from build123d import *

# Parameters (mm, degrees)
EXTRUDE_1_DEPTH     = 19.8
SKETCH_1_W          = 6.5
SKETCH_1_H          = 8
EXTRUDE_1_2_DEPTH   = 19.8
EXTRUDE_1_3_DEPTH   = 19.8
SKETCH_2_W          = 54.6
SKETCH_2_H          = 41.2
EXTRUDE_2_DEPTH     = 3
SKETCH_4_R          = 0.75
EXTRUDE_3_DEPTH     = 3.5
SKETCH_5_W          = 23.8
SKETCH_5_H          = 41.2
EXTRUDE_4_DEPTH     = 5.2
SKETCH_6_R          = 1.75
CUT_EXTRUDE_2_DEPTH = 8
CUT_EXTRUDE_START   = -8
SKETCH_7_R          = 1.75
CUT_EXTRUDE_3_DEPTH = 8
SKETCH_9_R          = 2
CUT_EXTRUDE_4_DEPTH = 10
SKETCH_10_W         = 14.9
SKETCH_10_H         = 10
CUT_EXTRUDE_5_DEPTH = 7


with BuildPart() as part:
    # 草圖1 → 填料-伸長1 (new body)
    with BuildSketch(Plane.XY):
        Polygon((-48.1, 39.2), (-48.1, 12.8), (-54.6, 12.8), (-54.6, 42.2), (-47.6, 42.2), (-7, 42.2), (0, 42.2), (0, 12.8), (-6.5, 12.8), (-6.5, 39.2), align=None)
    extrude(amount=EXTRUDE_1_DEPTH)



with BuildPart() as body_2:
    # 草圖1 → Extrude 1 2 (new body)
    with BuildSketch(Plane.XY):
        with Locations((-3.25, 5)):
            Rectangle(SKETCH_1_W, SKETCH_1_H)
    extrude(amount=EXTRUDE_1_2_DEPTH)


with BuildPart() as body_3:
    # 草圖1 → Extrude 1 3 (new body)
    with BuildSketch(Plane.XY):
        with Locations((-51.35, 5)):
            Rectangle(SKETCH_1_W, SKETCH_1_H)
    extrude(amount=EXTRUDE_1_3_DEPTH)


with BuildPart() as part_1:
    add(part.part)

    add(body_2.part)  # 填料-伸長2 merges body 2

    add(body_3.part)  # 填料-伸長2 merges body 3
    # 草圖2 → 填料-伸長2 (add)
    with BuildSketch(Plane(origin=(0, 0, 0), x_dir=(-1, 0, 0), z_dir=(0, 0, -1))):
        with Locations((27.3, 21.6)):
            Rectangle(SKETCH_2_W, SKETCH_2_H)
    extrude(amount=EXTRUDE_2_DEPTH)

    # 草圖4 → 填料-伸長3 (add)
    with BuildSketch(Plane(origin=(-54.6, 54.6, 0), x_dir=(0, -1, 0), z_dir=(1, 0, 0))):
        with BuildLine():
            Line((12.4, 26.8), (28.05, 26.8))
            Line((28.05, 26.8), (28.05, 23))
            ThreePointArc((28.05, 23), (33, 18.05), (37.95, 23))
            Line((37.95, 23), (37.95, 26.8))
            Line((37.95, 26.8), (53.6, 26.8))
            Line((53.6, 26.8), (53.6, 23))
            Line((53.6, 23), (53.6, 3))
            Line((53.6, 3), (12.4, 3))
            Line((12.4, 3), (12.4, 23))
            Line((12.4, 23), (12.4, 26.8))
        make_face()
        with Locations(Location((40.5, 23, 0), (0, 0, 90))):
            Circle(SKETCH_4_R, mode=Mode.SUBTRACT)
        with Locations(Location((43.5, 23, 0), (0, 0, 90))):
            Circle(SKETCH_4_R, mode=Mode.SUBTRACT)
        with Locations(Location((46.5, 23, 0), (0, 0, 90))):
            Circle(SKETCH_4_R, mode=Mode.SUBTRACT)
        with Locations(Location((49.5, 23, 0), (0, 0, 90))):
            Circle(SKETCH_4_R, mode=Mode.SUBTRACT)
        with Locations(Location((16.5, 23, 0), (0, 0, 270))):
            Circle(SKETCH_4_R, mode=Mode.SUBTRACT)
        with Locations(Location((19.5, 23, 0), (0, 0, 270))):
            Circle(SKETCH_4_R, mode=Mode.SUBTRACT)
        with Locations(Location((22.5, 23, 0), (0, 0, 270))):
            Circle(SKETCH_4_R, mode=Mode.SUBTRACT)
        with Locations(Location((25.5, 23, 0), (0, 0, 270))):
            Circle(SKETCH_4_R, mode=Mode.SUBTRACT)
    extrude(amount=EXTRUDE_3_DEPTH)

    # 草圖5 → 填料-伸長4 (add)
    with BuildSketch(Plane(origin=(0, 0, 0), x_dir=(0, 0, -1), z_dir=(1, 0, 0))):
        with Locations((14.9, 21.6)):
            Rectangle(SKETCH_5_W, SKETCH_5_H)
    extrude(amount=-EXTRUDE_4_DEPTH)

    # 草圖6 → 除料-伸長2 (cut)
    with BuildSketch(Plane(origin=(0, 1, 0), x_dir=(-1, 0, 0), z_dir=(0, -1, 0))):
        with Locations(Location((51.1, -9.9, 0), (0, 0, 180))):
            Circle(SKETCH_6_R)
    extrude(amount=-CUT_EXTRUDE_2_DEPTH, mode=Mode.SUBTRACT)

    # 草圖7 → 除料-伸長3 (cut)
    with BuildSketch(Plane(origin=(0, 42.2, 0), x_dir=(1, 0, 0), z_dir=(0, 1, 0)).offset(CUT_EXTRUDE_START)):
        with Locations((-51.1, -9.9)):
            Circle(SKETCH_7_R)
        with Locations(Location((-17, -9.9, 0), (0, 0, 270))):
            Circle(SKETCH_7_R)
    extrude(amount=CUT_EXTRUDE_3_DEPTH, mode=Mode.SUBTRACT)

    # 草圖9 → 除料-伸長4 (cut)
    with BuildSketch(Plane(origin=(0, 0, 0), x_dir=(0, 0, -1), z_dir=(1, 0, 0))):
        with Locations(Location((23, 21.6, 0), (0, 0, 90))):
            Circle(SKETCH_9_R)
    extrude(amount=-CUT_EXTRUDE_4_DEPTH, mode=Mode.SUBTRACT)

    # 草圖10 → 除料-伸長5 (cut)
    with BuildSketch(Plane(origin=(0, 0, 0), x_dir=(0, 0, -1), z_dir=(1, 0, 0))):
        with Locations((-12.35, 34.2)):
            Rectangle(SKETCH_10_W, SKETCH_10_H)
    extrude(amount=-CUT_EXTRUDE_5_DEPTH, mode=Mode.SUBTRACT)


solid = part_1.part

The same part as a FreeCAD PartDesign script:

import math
import FreeCAD as App
import Part
import Sketcher


def add_polygon(sketch, points):
    """Adds a closed chain of lines whose ends are joined by coincident constraints."""
    first, n = sketch.GeometryCount, len(points)
    for a, b in zip(points, points[1:] + points[:1]):
        sketch.addGeometry(Part.LineSegment(App.Vector(*a, 0), App.Vector(*b, 0)), False)
    for i in range(n):
        sketch.addConstraint(Sketcher.Constraint("Coincident", first + i, 2, first + (i + 1) % n, 1))

doc = App.newDocument("Part")
body = doc.addObject("PartDesign::Body", "Body")

# Sketch on XY plane
sketch1 = body.newObject("Sketcher::SketchObject", "Sketch")
sketch1.AttachmentSupport = (doc.getObject("XY_Plane"), [""])
sketch1.MapMode = "FlatFace"
add_polygon(sketch1, [(-48, 13), (-48, 39), (-6, 39), (-6, 13), (0, 13), (0, 42), (-55, 42), (-55, 13)])  # lines 0-7
sketch1.addConstraint(Sketcher.Constraint("Vertical", 0))
sketch1.addConstraint(Sketcher.Constraint("Horizontal", 1))
sketch1.addConstraint(Sketcher.Constraint("Vertical", 2))
sketch1.addConstraint(Sketcher.Constraint("Horizontal", 3))
sketch1.addConstraint(Sketcher.Constraint("Vertical", 4))
sketch1.addConstraint(Sketcher.Constraint("Horizontal", 5))
sketch1.addConstraint(Sketcher.Constraint("Vertical", 6))
sketch1.addConstraint(Sketcher.Constraint("Horizontal", 7))
sketch1.addConstraint(Sketcher.Constraint("PointOnObject", 3, 2, -2))
sketch1.addConstraint(Sketcher.Constraint("Horizontal", 3, 2, 6, 2))
sketch1.addConstraint(Sketcher.Constraint("Equal", 3, 7))
sketch1.addConstraint(Sketcher.Constraint("DistanceX", 1, 1, 1, 2, 41.6))
sketch1.addConstraint(Sketcher.Constraint("DistanceX", 3, 1, 3, 2, 6.5))
sketch1.addConstraint(Sketcher.Constraint("DistanceY", 0, 1, 0, 2, 26.4))
sketch1.addConstraint(Sketcher.Constraint("DistanceY", 4, 1, 4, 2, 29.4))
sketch1.addConstraint(Sketcher.Constraint("DistanceY", -1, 1, 0, 2, 39.2))
pad1 = body.newObject("PartDesign::Pad", "Pad")
pad1.Profile = sketch1
pad1.Length = 19.8
body2 = doc.addObject("PartDesign::Body", "Body001")

# Sketch on XY plane
sketch2 = body2.newObject("Sketcher::SketchObject", "Sketch001")
sketch2.AttachmentSupport = (doc.getObject("XY_Plane001"), [""])
sketch2.MapMode = "FlatFace"
add_polygon(sketch2, [(-6, 9), (-6, 1), (0, 1), (0, 9)])  # lines 0-3
sketch2.addConstraint(Sketcher.Constraint("Vertical", 0))
sketch2.addConstraint(Sketcher.Constraint("Horizontal", 1))
sketch2.addConstraint(Sketcher.Constraint("Vertical", 2))
sketch2.addConstraint(Sketcher.Constraint("Horizontal", 3))
sketch2.addConstraint(Sketcher.Constraint("PointOnObject", 1, 2, -2))
sketch2.addConstraint(Sketcher.Constraint("DistanceY", 0, 2, 0, 1, 8.0))
sketch2.addConstraint(Sketcher.Constraint("DistanceX", 1, 1, 1, 2, 6.5))
sketch2.addConstraint(Sketcher.Constraint("DistanceY", -1, 1, 0, 2, 1.0))
pad2 = body2.newObject("PartDesign::Pad", "Pad001")
pad2.Profile = sketch2
pad2.Length = 19.8
body3 = doc.addObject("PartDesign::Body", "Body002")

# Sketch on XY plane
sketch3 = body3.newObject("Sketcher::SketchObject", "Sketch002")
sketch3.AttachmentSupport = (doc.getObject("XY_Plane002"), [""])
sketch3.MapMode = "FlatFace"
add_polygon(sketch3, [(-55, 9), (-55, 1), (-48, 1), (-48, 9)])  # lines 0-3
sketch3.addConstraint(Sketcher.Constraint("Vertical", 0))
sketch3.addConstraint(Sketcher.Constraint("Horizontal", 1))
sketch3.addConstraint(Sketcher.Constraint("Vertical", 2))
sketch3.addConstraint(Sketcher.Constraint("Horizontal", 3))
sketch3.addConstraint(Sketcher.Constraint("DistanceY", 0, 2, 0, 1, 8.0))
sketch3.addConstraint(Sketcher.Constraint("DistanceX", 1, 1, 1, 2, 6.5))
sketch3.addConstraint(Sketcher.Constraint("DistanceY", -1, 1, 0, 2, 1.0))
sketch3.addConstraint(Sketcher.Constraint("DistanceX", 0, 2, -1, 1, 54.6))
pad3 = body3.newObject("PartDesign::Pad", "Pad002")
pad3.Profile = sketch3
pad3.Length = 19.8
body.AllowCompound = True
doc.recompute()

boolean = body.newObject("PartDesign::Boolean", "Boolean")
boolean.Type = "Fuse"
boolean.addObjects([body2])
doc.recompute()

boolean2 = body.newObject("PartDesign::Boolean", "Boolean001")
boolean2.Type = "Fuse"
boolean2.addObjects([body3])

# Sketch on XY plane
sketch4 = body.newObject("Sketcher::SketchObject", "Sketch003")
sketch4.AttachmentSupport = (doc.getObject("XY_Plane"), [""])
sketch4.MapMode = "FlatFace"
add_polygon(sketch4, [(0, 42), (0, 1), (-55, 1), (-55, 42)])  # lines 0-3
sketch4.addConstraint(Sketcher.Constraint("Vertical", 0))
sketch4.addConstraint(Sketcher.Constraint("Horizontal", 1))
sketch4.addConstraint(Sketcher.Constraint("Vertical", 2))
sketch4.addConstraint(Sketcher.Constraint("Horizontal", 3))
sketch4.addConstraint(Sketcher.Constraint("PointOnObject", 0, 2, -2))
sketch4.addConstraint(Sketcher.Constraint("DistanceX", 1, 2, 1, 1, 54.6))
sketch4.addConstraint(Sketcher.Constraint("DistanceY", 0, 2, 0, 1, 41.2))
sketch4.addConstraint(Sketcher.Constraint("DistanceY", -1, 1, 0, 2, 1.0))
pad4 = body.newObject("PartDesign::Pad", "Pad003")
pad4.Profile = sketch4
pad4.Length = 3
pad4.Reversed = True

# Sketch on YZ plane
sketch5 = body.newObject("Sketcher::SketchObject", "Sketch004")
sketch5.AttachmentSupport = (doc.getObject("YZ_Plane"), [""])
sketch5.MapMode = "FlatFace"
sketch5.AttachmentOffset = App.Placement(App.Vector(0, 0, -54.6), App.Rotation())
sketch5.addGeometry(Part.LineSegment(App.Vector(26.6, -26.8, 0), App.Vector(42.2, -26.8, 0)), False)
sketch5.addGeometry(Part.LineSegment(App.Vector(42.2, -26.8, 0), App.Vector(42.2, -3, 0)), False)
sketch5.addGeometry(Part.LineSegment(App.Vector(42.2, -3, 0), App.Vector(1, -3, 0)), False)
sketch5.addGeometry(Part.LineSegment(App.Vector(1, -3, 0), App.Vector(1, -26.8, 0)), False)
sketch5.addGeometry(Part.LineSegment(App.Vector(1, -26.8, 0), App.Vector(16.6, -26.8, 0)), False)
sketch5.addGeometry(Part.LineSegment(App.Vector(16.6, -26.8, 0), App.Vector(16.6, -23, 0)), False)
sketch5.addGeometry(Part.ArcOfCircle(Part.Circle(App.Vector(21.6, -23, 0), App.Vector(0, 0, 1), 5), math.radians(0), math.radians(180)), False)
sketch5.addGeometry(Part.LineSegment(App.Vector(26.6, -23, 0), App.Vector(26.6, -26.8, 0)), False)
sketch5.addGeometry(Part.Circle(App.Vector(5.1, -23, 0), App.Vector(0, 0, 1), 0.8), False)
sketch5.addGeometry(Part.Circle(App.Vector(8.1, -23, 0), App.Vector(0, 0, 1), 0.8), False)
sketch5.addGeometry(Part.Circle(App.Vector(11.1, -23, 0), App.Vector(0, 0, 1), 0.8), False)
sketch5.addGeometry(Part.Circle(App.Vector(14.1, -23, 0), App.Vector(0, 0, 1), 0.8), False)
sketch5.addGeometry(Part.Circle(App.Vector(29.1, -23, 0), App.Vector(0, 0, 1), 0.8), False)
sketch5.addGeometry(Part.Circle(App.Vector(32.1, -23, 0), App.Vector(0, 0, 1), 0.8), False)
sketch5.addGeometry(Part.Circle(App.Vector(35.1, -23, 0), App.Vector(0, 0, 1), 0.8), False)
sketch5.addGeometry(Part.Circle(App.Vector(38.1, -23, 0), App.Vector(0, 0, 1), 0.8), False)
sketch5.addConstraint(Sketcher.Constraint("Coincident", 0, 2, 1, 1))
sketch5.addConstraint(Sketcher.Constraint("Coincident", 1, 2, 2, 1))
sketch5.addConstraint(Sketcher.Constraint("Coincident", 2, 2, 3, 1))
sketch5.addConstraint(Sketcher.Constraint("Coincident", 3, 2, 4, 1))
sketch5.addConstraint(Sketcher.Constraint("Coincident", 4, 2, 5, 1))
sketch5.addConstraint(Sketcher.Constraint("Tangent", 5, 2, 6, 2))
sketch5.addConstraint(Sketcher.Constraint("Tangent", 6, 1, 7, 1))
sketch5.addConstraint(Sketcher.Constraint("Coincident", 7, 2, 0, 1))
sketch5.addConstraint(Sketcher.Constraint("Horizontal", 0))
sketch5.addConstraint(Sketcher.Constraint("Vertical", 1))
sketch5.addConstraint(Sketcher.Constraint("Horizontal", 2))
sketch5.addConstraint(Sketcher.Constraint("Vertical", 3))
sketch5.addConstraint(Sketcher.Constraint("Horizontal", 4))
sketch5.addConstraint(Sketcher.Constraint("Vertical", 5))
sketch5.addConstraint(Sketcher.Constraint("Vertical", 7))
sketch5.addConstraint(Sketcher.Constraint("Equal", 8, 9))
sketch5.addConstraint(Sketcher.Constraint("Equal", 9, 10))
sketch5.addConstraint(Sketcher.Constraint("Equal", 10, 11))
sketch5.addConstraint(Sketcher.Constraint("Equal", 11, 12))
sketch5.addConstraint(Sketcher.Constraint("Equal", 12, 13))
sketch5.addConstraint(Sketcher.Constraint("Equal", 13, 14))
sketch5.addConstraint(Sketcher.Constraint("Equal", 14, 15))
sketch5.addConstraint(Sketcher.Constraint("Horizontal", 6, 3, 8, 3))
sketch5.addConstraint(Sketcher.Constraint("Horizontal", 8, 3, 9, 3))
sketch5.addConstraint(Sketcher.Constraint("Horizontal", 9, 3, 10, 3))
sketch5.addConstraint(Sketcher.Constraint("Horizontal", 10, 3, 11, 3))
sketch5.addConstraint(Sketcher.Constraint("Horizontal", 11, 3, 12, 3))
sketch5.addConstraint(Sketcher.Constraint("Horizontal", 12, 3, 13, 3))
sketch5.addConstraint(Sketcher.Constraint("Horizontal", 13, 3, 14, 3))
sketch5.addConstraint(Sketcher.Constraint("Horizontal", 14, 3, 15, 3))
sketch5.addConstraint(Sketcher.Constraint("Horizontal", 0, 2, 3, 2))
sketch5.addConstraint(Sketcher.Constraint("Equal", 0, 4))
sketch5.addConstraint(Sketcher.Constraint("Diameter", 8, 1.5))
sketch5.addConstraint(Sketcher.Constraint("Radius", 6, 4.95))
sketch5.addConstraint(Sketcher.Constraint("DistanceX", 2, 2, 2, 1, 41.2))
sketch5.addConstraint(Sketcher.Constraint("DistanceY", 1, 1, 1, 2, 23.8))
sketch5.addConstraint(Sketcher.Constraint("DistanceY", 5, 1, 5, 2, 3.8))
sketch5.addConstraint(Sketcher.Constraint("DistanceY", 6, 3, -1, 1, 23.0))
sketch5.addConstraint(Sketcher.Constraint("DistanceX", -1, 1, 2, 2, 1.0))
sketch5.addConstraint(Sketcher.Constraint("DistanceX", 8, 3, 9, 3, 3.0))
sketch5.addConstraint(Sketcher.Constraint("DistanceX", 9, 3, 10, 3, 3.0))
sketch5.addConstraint(Sketcher.Constraint("DistanceX", 10, 3, 11, 3, 3.0))
sketch5.addConstraint(Sketcher.Constraint("DistanceX", 11, 3, 12, 3, 15.0))
sketch5.addConstraint(Sketcher.Constraint("DistanceX", 12, 3, 13, 3, 3.0))
sketch5.addConstraint(Sketcher.Constraint("DistanceX", 13, 3, 14, 3, 3.0))
sketch5.addConstraint(Sketcher.Constraint("DistanceX", 14, 3, 15, 3, 3.0))
sketch5.addConstraint(Sketcher.Constraint("DistanceX", -1, 1, 8, 3, 5.1))
pad5 = body.newObject("PartDesign::Pad", "Pad004")
pad5.Profile = sketch5
pad5.Length = 3.5

# Sketch on YZ plane
sketch6 = body.newObject("Sketcher::SketchObject", "Sketch005")
sketch6.AttachmentSupport = (doc.getObject("YZ_Plane"), [""])
sketch6.MapMode = "FlatFace"
add_polygon(sketch6, [(42, -3), (1, -3), (1, -27), (42, -27)])  # lines 0-3
sketch6.addConstraint(Sketcher.Constraint("Horizontal", 0))
sketch6.addConstraint(Sketcher.Constraint("Vertical", 1))
sketch6.addConstraint(Sketcher.Constraint("Horizontal", 2))
sketch6.addConstraint(Sketcher.Constraint("Vertical", 3))
sketch6.addConstraint(Sketcher.Constraint("DistanceX", 0, 2, 0, 1, 41.2))
sketch6.addConstraint(Sketcher.Constraint("DistanceY", 1, 2, 1, 1, 23.8))
sketch6.addConstraint(Sketcher.Constraint("DistanceX", -1, 1, 0, 2, 1.0))
sketch6.addConstraint(Sketcher.Constraint("DistanceY", 0, 2, -1, 1, 3.0))
pad6 = body.newObject("PartDesign::Pad", "Pad005")
pad6.Profile = sketch6
pad6.Length = 5.2
pad6.Reversed = True

# Sketch on XZ plane
sketch7 = body.newObject("Sketcher::SketchObject", "Sketch006")
sketch7.AttachmentSupport = (doc.getObject("XZ_Plane"), [""])
sketch7.MapMode = "FlatFace"
sketch7.AttachmentOffset = App.Placement(App.Vector(0, 0, -1), App.Rotation())
sketch7.addGeometry(Part.Circle(App.Vector(-51.1, 9.9, 0), App.Vector(0, 0, 1), 1.8), False)
sketch7.addConstraint(Sketcher.Constraint("Diameter", 0, 3.5))
sketch7.addConstraint(Sketcher.Constraint("DistanceX", 0, 3, -1, 1, 51.1))
sketch7.addConstraint(Sketcher.Constraint("DistanceY", -1, 1, 0, 3, 9.9))
pocket1 = body.newObject("PartDesign::Pocket", "Pocket")
pocket1.Profile = sketch7
pocket1.Length = 8

# Sketch on XZ plane
sketch8 = body.newObject("Sketcher::SketchObject", "Sketch007")
sketch8.AttachmentSupport = (doc.getObject("XZ_Plane"), [""])
sketch8.MapMode = "FlatFace"
sketch8.AttachmentOffset = App.Placement(App.Vector(0, 0, -34.2), App.Rotation())
sketch8.addGeometry(Part.Circle(App.Vector(-51.1, 9.9, 0), App.Vector(0, 0, 1), 1.8), False)
sketch8.addGeometry(Part.Circle(App.Vector(-17, 9.9, 0), App.Vector(0, 0, 1), 1.8), False)
sketch8.addConstraint(Sketcher.Constraint("Equal", 0, 1))
sketch8.addConstraint(Sketcher.Constraint("Horizontal", 0, 3, 1, 3))
sketch8.addConstraint(Sketcher.Constraint("Diameter", 0, 3.5))
sketch8.addConstraint(Sketcher.Constraint("DistanceX", 1, 3, -1, 1, 17.0))
sketch8.addConstraint(Sketcher.Constraint("DistanceX", 0, 3, -1, 1, 51.1))
sketch8.addConstraint(Sketcher.Constraint("DistanceY", -1, 1, 0, 3, 9.9))
pocket2 = body.newObject("PartDesign::Pocket", "Pocket001")
pocket2.Profile = sketch8
pocket2.Length = 8

# Sketch on YZ plane
sketch9 = body.newObject("Sketcher::SketchObject", "Sketch008")
sketch9.AttachmentSupport = (doc.getObject("YZ_Plane"), [""])
sketch9.MapMode = "FlatFace"
sketch9.addGeometry(Part.Circle(App.Vector(21.6, -23, 0), App.Vector(0, 0, 1), 2), False)
sketch9.addConstraint(Sketcher.Constraint("Diameter", 0, 4.0))
sketch9.addConstraint(Sketcher.Constraint("DistanceY", 0, 3, -1, 1, 23.0))
sketch9.addConstraint(Sketcher.Constraint("DistanceX", -1, 1, 0, 3, 21.6))
pocket3 = body.newObject("PartDesign::Pocket", "Pocket002")
pocket3.Profile = sketch9
pocket3.Length = 10

# Sketch on YZ plane
sketch10 = body.newObject("Sketcher::SketchObject", "Sketch009")
sketch10.AttachmentSupport = (doc.getObject("YZ_Plane"), [""])
sketch10.MapMode = "FlatFace"
add_polygon(sketch10, [(39, 20), (29, 20), (29, 5), (39, 5)])  # lines 0-3
sketch10.addConstraint(Sketcher.Constraint("Horizontal", 0))
sketch10.addConstraint(Sketcher.Constraint("Vertical", 1))
sketch10.addConstraint(Sketcher.Constraint("Horizontal", 2))
sketch10.addConstraint(Sketcher.Constraint("Vertical", 3))
sketch10.addConstraint(Sketcher.Constraint("DistanceX", 0, 2, 0, 1, 10.0))
sketch10.addConstraint(Sketcher.Constraint("DistanceY", 1, 2, 1, 1, 14.9))
sketch10.addConstraint(Sketcher.Constraint("DistanceX", -1, 1, 0, 2, 29.2))
sketch10.addConstraint(Sketcher.Constraint("DistanceY", -1, 1, 0, 2, 19.8))
pocket4 = body.newObject("PartDesign::Pocket", "Pocket003")
pocket4.Profile = sketch10
pocket4.Length = 7

doc.recompute()
